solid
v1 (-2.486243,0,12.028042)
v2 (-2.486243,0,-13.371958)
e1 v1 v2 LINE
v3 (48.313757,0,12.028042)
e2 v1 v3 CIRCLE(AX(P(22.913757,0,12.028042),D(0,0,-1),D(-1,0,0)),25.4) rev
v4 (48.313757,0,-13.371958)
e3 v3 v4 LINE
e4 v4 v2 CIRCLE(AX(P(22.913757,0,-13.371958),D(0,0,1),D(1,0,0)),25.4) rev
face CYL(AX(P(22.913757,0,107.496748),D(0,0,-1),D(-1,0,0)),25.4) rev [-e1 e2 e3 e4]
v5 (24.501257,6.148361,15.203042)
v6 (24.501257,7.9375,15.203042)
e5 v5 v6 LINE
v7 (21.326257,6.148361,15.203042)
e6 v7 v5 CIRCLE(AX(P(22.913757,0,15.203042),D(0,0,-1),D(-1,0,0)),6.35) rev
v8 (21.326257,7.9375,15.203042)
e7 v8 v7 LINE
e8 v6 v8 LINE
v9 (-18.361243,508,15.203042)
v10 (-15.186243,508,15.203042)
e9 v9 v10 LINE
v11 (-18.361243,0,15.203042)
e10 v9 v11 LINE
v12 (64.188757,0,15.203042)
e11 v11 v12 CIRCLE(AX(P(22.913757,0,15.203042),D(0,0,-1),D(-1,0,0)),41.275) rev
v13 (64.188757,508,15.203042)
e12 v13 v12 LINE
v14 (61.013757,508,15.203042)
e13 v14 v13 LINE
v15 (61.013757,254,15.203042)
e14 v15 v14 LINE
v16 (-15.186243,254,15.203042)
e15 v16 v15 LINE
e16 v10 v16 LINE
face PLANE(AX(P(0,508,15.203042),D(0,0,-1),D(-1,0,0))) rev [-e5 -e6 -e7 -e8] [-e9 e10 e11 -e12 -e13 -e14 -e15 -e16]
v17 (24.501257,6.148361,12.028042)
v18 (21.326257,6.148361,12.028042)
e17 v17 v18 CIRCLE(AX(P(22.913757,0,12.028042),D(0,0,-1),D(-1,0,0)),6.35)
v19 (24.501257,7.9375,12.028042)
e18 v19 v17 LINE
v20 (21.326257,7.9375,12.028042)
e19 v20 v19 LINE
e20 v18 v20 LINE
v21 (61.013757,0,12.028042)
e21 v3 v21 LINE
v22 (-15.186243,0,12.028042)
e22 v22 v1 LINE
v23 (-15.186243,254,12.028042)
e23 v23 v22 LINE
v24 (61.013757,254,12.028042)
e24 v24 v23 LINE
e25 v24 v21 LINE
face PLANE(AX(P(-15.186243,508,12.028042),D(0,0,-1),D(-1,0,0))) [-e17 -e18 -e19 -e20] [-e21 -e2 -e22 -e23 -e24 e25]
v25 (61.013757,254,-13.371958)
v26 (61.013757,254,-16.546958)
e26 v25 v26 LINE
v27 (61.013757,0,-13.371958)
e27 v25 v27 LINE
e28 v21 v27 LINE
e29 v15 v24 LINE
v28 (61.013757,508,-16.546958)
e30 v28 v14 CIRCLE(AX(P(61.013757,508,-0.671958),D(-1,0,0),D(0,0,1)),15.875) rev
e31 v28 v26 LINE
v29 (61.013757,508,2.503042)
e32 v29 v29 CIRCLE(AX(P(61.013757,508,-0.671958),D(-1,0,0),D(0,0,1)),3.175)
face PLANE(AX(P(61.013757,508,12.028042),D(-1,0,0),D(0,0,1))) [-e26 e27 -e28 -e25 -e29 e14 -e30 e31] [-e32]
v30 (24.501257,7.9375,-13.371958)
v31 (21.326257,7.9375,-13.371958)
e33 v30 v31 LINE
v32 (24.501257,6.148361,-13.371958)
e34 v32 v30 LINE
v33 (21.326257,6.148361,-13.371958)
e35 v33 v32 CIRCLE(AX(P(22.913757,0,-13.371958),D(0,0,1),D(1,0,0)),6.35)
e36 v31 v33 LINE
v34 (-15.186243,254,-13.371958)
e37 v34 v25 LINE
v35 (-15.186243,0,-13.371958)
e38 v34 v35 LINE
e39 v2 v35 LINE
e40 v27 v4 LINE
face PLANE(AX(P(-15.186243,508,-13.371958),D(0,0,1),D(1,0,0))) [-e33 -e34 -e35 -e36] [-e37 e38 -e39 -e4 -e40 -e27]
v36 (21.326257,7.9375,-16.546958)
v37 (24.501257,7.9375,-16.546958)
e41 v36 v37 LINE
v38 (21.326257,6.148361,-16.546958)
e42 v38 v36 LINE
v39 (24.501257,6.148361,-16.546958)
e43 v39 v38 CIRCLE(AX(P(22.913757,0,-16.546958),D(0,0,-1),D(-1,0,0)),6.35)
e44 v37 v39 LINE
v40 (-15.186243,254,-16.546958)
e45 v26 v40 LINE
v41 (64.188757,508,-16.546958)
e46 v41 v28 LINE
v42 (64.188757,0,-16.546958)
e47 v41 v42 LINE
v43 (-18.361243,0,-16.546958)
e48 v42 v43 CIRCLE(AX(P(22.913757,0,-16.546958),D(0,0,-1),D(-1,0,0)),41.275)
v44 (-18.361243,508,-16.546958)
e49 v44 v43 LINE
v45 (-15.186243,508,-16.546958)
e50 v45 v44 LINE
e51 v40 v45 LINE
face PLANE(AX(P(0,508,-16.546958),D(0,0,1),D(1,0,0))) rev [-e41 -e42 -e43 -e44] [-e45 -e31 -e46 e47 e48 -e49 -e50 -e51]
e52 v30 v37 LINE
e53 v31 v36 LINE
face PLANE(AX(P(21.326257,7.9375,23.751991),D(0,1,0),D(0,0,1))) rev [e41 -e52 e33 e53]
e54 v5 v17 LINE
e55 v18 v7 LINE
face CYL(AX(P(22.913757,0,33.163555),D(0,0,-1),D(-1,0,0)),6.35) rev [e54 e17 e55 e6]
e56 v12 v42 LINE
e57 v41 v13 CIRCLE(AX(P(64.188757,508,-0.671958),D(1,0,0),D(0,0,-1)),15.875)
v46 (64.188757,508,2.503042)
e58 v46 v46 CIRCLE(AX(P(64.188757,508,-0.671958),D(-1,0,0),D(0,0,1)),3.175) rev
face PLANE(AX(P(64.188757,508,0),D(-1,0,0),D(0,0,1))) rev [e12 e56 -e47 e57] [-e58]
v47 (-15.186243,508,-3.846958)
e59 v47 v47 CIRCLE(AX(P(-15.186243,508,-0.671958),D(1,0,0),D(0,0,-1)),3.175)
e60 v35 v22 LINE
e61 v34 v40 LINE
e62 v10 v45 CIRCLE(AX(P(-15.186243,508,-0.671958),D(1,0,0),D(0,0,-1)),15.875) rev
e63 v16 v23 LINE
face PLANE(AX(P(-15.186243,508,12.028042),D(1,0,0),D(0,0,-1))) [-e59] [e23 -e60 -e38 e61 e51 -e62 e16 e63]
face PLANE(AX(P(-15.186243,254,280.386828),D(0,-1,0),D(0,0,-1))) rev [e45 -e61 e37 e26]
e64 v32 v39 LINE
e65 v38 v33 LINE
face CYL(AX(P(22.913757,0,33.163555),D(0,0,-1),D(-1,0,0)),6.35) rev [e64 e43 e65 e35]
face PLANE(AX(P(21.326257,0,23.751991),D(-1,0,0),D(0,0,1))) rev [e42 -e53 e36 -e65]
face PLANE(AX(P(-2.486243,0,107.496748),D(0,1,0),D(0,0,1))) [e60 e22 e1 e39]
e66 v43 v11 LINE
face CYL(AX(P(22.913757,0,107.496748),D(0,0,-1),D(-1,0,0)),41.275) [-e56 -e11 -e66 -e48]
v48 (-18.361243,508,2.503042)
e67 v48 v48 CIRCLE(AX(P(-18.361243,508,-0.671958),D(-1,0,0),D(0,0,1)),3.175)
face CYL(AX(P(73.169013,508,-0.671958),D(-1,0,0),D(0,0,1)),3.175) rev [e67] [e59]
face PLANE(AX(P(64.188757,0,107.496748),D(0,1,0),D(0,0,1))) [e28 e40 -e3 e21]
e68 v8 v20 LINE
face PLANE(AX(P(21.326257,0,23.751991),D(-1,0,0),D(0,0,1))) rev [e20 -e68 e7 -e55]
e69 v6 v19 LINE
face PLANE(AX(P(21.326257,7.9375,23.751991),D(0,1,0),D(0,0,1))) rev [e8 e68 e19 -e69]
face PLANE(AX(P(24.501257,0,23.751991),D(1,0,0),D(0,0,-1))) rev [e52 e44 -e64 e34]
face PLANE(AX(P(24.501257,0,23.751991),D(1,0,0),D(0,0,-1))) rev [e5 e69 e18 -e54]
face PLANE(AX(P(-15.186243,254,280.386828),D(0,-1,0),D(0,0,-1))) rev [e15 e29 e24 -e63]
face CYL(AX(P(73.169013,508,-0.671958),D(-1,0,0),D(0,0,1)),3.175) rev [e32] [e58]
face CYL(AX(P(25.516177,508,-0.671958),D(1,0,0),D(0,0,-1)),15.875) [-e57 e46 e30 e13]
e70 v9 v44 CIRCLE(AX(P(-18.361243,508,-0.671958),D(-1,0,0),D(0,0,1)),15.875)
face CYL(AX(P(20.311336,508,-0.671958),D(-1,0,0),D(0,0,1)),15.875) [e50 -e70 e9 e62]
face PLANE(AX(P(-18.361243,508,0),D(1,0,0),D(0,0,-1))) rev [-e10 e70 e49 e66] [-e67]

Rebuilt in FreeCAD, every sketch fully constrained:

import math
import FreeCAD as App
import Part
import Sketcher
Q = App.Units.Quantity

doc = App.newDocument("Part")
params = doc.addObject("Spreadsheet::Sheet", "Params")
for row, (alias, value) in enumerate([
    ("sketch1_width", "3 in"),
    ("sketch1_height", "1 in"),
    ("sketch1_width2", "3.25 in"),
    ("sketch1_height2", "1.25 in"),
    ("pad1_length", "20 in"),
    ("sketch2_radius", "1 in"),
    ("sketch2_radius2", "1.625 in"),
    ("pad2_length", "1.25 in"),
    ("sketch3_radius", "1 in"),
    ("pad3_length", "0.125 in"),
    ("sketch4_radius", "1 in"),
    ("pad4_length", "0.125 in"),
    ("sketch5_diameter", "0.5 in"),
    ("pocket1_length", "1.25 in"),
    ("sketch6_width", "0.125 in"),
    ("sketch6_height", "0.3125 in"),
    ("pocket2_length", "1.25 in"),
    ("sketch7_diameter", "0.5 in"),
    ("pocket3_length", "57.601281 mm"),
    ("sketch8_radius", "0.625 in"),
    ("pad5_length", "0.125 in"),
    ("sketch9_radius", "0.625 in"),
    ("pad6_length", "0.125 in"),
    ("sketch10_diameter", "0.25 in"),
    ("pocket4_length", "3.25 in"),
    ("sketch11_width", "3 in"),
    ("sketch11_height", "10 in"),
    ("pocket5_length", "1.25 in"),
], start=1):
    params.set(f"A{row}", alias)
    params.set(f"B{row}", "=" + value)
    params.setAlias(f"B{row}", alias)

body = doc.addObject("PartDesign::Body", "Body")

# Sketch on XZ plane
sketch1 = body.newObject("Sketcher::SketchObject", "Sketch")
sketch1.AttachmentSupport = (doc.getObject("XZ_Plane"), [""])
sketch1.MapMode = "FlatFace"
sketch1.addGeometry(Part.LineSegment(App.Vector(-18.361243, -16.546958, 0), App.Vector(-18.361243, 15.203042, 0)), False)
sketch1.addGeometry(Part.LineSegment(App.Vector(-18.361243, 15.203042, 0), App.Vector(64.188757, 15.203042, 0)), False)
sketch1.addGeometry(Part.LineSegment(App.Vector(64.188757, 15.203042, 0), App.Vector(64.188757, -16.546958, 0)), False)
sketch1.addGeometry(Part.LineSegment(App.Vector(64.188757, -16.546958, 0), App.Vector(-18.361243, -16.546958, 0)), False)
sketch1.addGeometry(Part.LineSegment(App.Vector(61.013757, 12.028042, 0), App.Vector(-15.186243, 12.028042, 0)), False)
sketch1.addGeometry(Part.LineSegment(App.Vector(-15.186243, 12.028042, 0), App.Vector(-15.186243, -13.371958, 0)), False)
sketch1.addGeometry(Part.LineSegment(App.Vector(-15.186243, -13.371958, 0), App.Vector(61.013757, -13.371958, 0)), False)
sketch1.addGeometry(Part.LineSegment(App.Vector(61.013757, -13.371958, 0), App.Vector(61.013757, 12.028042, 0)), False)
sketch1.addConstraint(Sketcher.Constraint("Coincident", 0, 2, 1, 1))
sketch1.addConstraint(Sketcher.Constraint("Coincident", 1, 2, 2, 1))
sketch1.addConstraint(Sketcher.Constraint("Coincident", 2, 2, 3, 1))
sketch1.addConstraint(Sketcher.Constraint("Coincident", 3, 2, 0, 1))
sketch1.addConstraint(Sketcher.Constraint("Coincident", 4, 2, 5, 1))
sketch1.addConstraint(Sketcher.Constraint("Coincident", 5, 2, 6, 1))
sketch1.addConstraint(Sketcher.Constraint("Coincident", 6, 2, 7, 1))
sketch1.addConstraint(Sketcher.Constraint("Coincident", 7, 2, 4, 1))
sketch1.addConstraint(Sketcher.Constraint("Vertical", 0))
sketch1.addConstraint(Sketcher.Constraint("Horizontal", 1))
sketch1.addConstraint(Sketcher.Constraint("Vertical", 2))
sketch1.addConstraint(Sketcher.Constraint("Horizontal", 3))
sketch1.addConstraint(Sketcher.Constraint("Horizontal", 4))
sketch1.addConstraint(Sketcher.Constraint("Vertical", 5))
sketch1.addConstraint(Sketcher.Constraint("Horizontal", 6))
sketch1.addConstraint(Sketcher.Constraint("Vertical", 7))
sketch1.addConstraint(Sketcher.Constraint("DistanceX", 4, 2, 4, 1, Q("3 in")))
sketch1.addConstraint(Sketcher.Constraint("DistanceY", 5, 2, 5, 1, Q("1 in")))
sketch1.addConstraint(Sketcher.Constraint("DistanceX", 1, 1, 1, 2, Q("3.25 in")))
sketch1.addConstraint(Sketcher.Constraint("DistanceY", 0, 1, 0, 2, Q("1.25 in")))
sketch1.addConstraint(Sketcher.Constraint("DistanceX", 0, 2, 4, 2, Q("0.125 in")))
sketch1.addConstraint(Sketcher.Constraint("DistanceY", 4, 2, 0, 2, Q("0.125 in")))
sketch1.addConstraint(Sketcher.Constraint("DistanceX", 0, 2, -1, 1, 18.361243))
sketch1.addConstraint(Sketcher.Constraint("DistanceY", -1, 1, 0, 2, 15.203042))
sketch1.setExpression("Constraints[16]", "Params.sketch1_width")
sketch1.setExpression("Constraints[17]", "Params.sketch1_height")
sketch1.setExpression("Constraints[18]", "Params.sketch1_width2")
sketch1.setExpression("Constraints[19]", "Params.sketch1_height2")
pad1 = body.newObject("PartDesign::Pad", "Pad")
pad1.Profile = sketch1
pad1.setExpression("Length", "Params.pad1_length")
pad1.Reversed = True

# Sketch on XY plane
sketch2 = body.newObject("Sketcher::SketchObject", "Sketch001")
sketch2.AttachmentSupport = (doc.getObject("XY_Plane"), [""])
sketch2.MapMode = "FlatFace"
sketch2.AttachmentOffset = App.Placement(App.Vector(0, 0, -16.546958), App.Rotation())
sketch2.addGeometry(Part.LineSegment(App.Vector(48.313757, 0, 0), App.Vector(64.188757, 0, 0)), False)
sketch2.addGeometry(Part.ArcOfCircle(Part.Circle(App.Vector(22.913757, 0, 0), App.Vector(0, 0, 1), 41.275), math.radians(180), math.radians(360)), False)
sketch2.addGeometry(Part.LineSegment(App.Vector(-18.361243, 0, 0), App.Vector(-2.486243, 0, 0)), False)
sketch2.addGeometry(Part.ArcOfCircle(Part.Circle(App.Vector(22.913757, 0, 0), App.Vector(0, 0, 1), 25.4), math.radians(180), math.radians(360)), False)
sketch2.addConstraint(Sketcher.Constraint("Coincident", 0, 2, 1, 2))
sketch2.addConstraint(Sketcher.Constraint("Coincident", 1, 1, 2, 1))
sketch2.addConstraint(Sketcher.Constraint("Coincident", 2, 2, 3, 1))
sketch2.addConstraint(Sketcher.Constraint("Coincident", 3, 2, 0, 1))
sketch2.addConstraint(Sketcher.Constraint("Horizontal", 0))
sketch2.addConstraint(Sketcher.Constraint("Horizontal", 2))
sketch2.addConstraint(Sketcher.Constraint("Coincident", 3, 3, 1, 3))
sketch2.addConstraint(Sketcher.Constraint("PointOnObject", 1, 3, -1))
sketch2.addConstraint(Sketcher.Constraint("PointOnObject", 0, 2, -1))
sketch2.addConstraint(Sketcher.Constraint("PointOnObject", 1, 1, -1))
sketch2.addConstraint(Sketcher.Constraint("Radius", 3, Q("1 in")))
sketch2.addConstraint(Sketcher.Constraint("Radius", 1, Q("1.625 in")))
sketch2.addConstraint(Sketcher.Constraint("DistanceX", -1, 1, 1, 3, 22.913757))
sketch2.setExpression("Constraints[10]", "Params.sketch2_radius")
sketch2.setExpression("Constraints[11]", "Params.sketch2_radius2")
pad2 = body.newObject("PartDesign::Pad", "Pad001")
pad2.Profile = sketch2
pad2.setExpression("Length", "Params.pad2_length")

# Sketch on XY plane
sketch3 = body.newObject("Sketcher::SketchObject", "Sketch002")
sketch3.AttachmentSupport = (doc.getObject("XY_Plane"), [""])
sketch3.MapMode = "FlatFace"
sketch3.AttachmentOffset = App.Placement(App.Vector(0, 0, -16.546958), App.Rotation())
sketch3.addGeometry(Part.LineSegment(App.Vector(-2.486243, 0, 0), App.Vector(48.313757, 0, 0)), False)
sketch3.addGeometry(Part.ArcOfCircle(Part.Circle(App.Vector(22.913757, 0, 0), App.Vector(0, 0, 1), 25.4), math.radians(180), math.radians(360)), False)
sketch3.addConstraint(Sketcher.Constraint("Coincident", 0, 1, 1, 1))
sketch3.addConstraint(Sketcher.Constraint("Coincident", 1, 2, 0, 2))
sketch3.addConstraint(Sketcher.Constraint("Horizontal", 0))
sketch3.addConstraint(Sketcher.Constraint("PointOnObject", 1, 3, -1))
sketch3.addConstraint(Sketcher.Constraint("PointOnObject", 0, 1, -1))
sketch3.addConstraint(Sketcher.Constraint("Radius", 1, Q("1 in")))
sketch3.addConstraint(Sketcher.Constraint("DistanceX", -1, 1, 1, 3, 22.913757))
sketch3.setExpression("Constraints[5]", "Params.sketch3_radius")
pad3 = body.newObject("PartDesign::Pad", "Pad002")
pad3.Profile = sketch3
pad3.setExpression("Length", "Params.pad3_length")

# Sketch on XY plane
sketch4 = body.newObject("Sketcher::SketchObject", "Sketch003")
sketch4.AttachmentSupport = (doc.getObject("XY_Plane"), [""])
sketch4.MapMode = "FlatFace"
sketch4.AttachmentOffset = App.Placement(App.Vector(0, 0, 15.203042), App.Rotation())
sketch4.addGeometry(Part.LineSegment(App.Vector(48.313757, 0, 0), App.Vector(-2.486243, 0, 0)), False)
sketch4.addGeometry(Part.ArcOfCircle(Part.Circle(App.Vector(22.913757, 0, 0), App.Vector(0, 0, 1), 25.4), math.radians(180), math.radians(360)), False)
sketch4.addConstraint(Sketcher.Constraint("Coincident", 0, 1, 1, 2))
sketch4.addConstraint(Sketcher.Constraint("Coincident", 1, 1, 0, 2))
sketch4.addConstraint(Sketcher.Constraint("Horizontal", 0))
sketch4.addConstraint(Sketcher.Constraint("PointOnObject", 1, 3, -1))
sketch4.addConstraint(Sketcher.Constraint("PointOnObject", 0, 1, -1))
sketch4.addConstraint(Sketcher.Constraint("Radius", 1, Q("1 in")))
sketch4.addConstraint(Sketcher.Constraint("DistanceX", -1, 1, 1, 3, 22.913757))
sketch4.setExpression("Constraints[5]", "Params.sketch4_radius")
pad4 = body.newObject("PartDesign::Pad", "Pad003")
pad4.Profile = sketch4
pad4.setExpression("Length", "Params.pad4_length")
pad4.Reversed = True

# Sketch on XY plane
sketch5 = body.newObject("Sketcher::SketchObject", "Sketch004")
sketch5.AttachmentSupport = (doc.getObject("XY_Plane"), [""])
sketch5.MapMode = "FlatFace"
sketch5.AttachmentOffset = App.Placement(App.Vector(0, 0, -16.546958), App.Rotation())
sketch5.addGeometry(Part.Circle(App.Vector(22.913757, 0, 0), App.Vector(0, 0, 1), 6.35), False)
sketch5.addConstraint(Sketcher.Constraint("PointOnObject", 0, 3, -1))
sketch5.addConstraint(Sketcher.Constraint("Diameter", 0, Q("0.5 in")))
sketch5.addConstraint(Sketcher.Constraint("DistanceX", -1, 1, 0, 3, 22.913757))
sketch5.setExpression("Constraints[1]", "Params.sketch5_diameter")
pocket1 = body.newObject("PartDesign::Pocket", "Pocket")
pocket1.Profile = sketch5
pocket1.setExpression("Length", "Params.pocket1_length")
pocket1.Reversed = True

# Sketch on XY plane
sketch6 = body.newObject("Sketcher::SketchObject", "Sketch005")
sketch6.AttachmentSupport = (doc.getObject("XY_Plane"), [""])
sketch6.MapMode = "FlatFace"
sketch6.AttachmentOffset = App.Placement(App.Vector(0, 0, -16.546958), App.Rotation())
sketch6.addGeometry(Part.LineSegment(App.Vector(24.501257, 7.9375, 0), App.Vector(24.501257, 0, 0)), False)
sketch6.addGeometry(Part.LineSegment(App.Vector(24.501257, 0, 0), App.Vector(21.326257, 0, 0)), False)
sketch6.addGeometry(Part.LineSegment(App.Vector(21.326257, 0, 0), App.Vector(21.326257, 7.9375, 0)), False)
sketch6.addGeometry(Part.LineSegment(App.Vector(21.326257, 7.9375, 0), App.Vector(24.501257, 7.9375, 0)), False)
sketch6.addConstraint(Sketcher.Constraint("Coincident", 0, 2, 1, 1))
sketch6.addConstraint(Sketcher.Constraint("Coincident", 1, 2, 2, 1))
sketch6.addConstraint(Sketcher.Constraint("Coincident", 2, 2, 3, 1))
sketch6.addConstraint(Sketcher.Constraint("Coincident", 3, 2, 0, 1))
sketch6.addConstraint(Sketcher.Constraint("Vertical", 0))
sketch6.addConstraint(Sketcher.Constraint("Horizontal", 1))
sketch6.addConstraint(Sketcher.Constraint("Vertical", 2))
sketch6.addConstraint(Sketcher.Constraint("Horizontal", 3))
sketch6.addConstraint(Sketcher.Constraint("PointOnObject", 0, 2, -1))
sketch6.addConstraint(Sketcher.Constraint("DistanceX", 1, 2, 1, 1, Q("0.125 in")))
sketch6.addConstraint(Sketcher.Constraint("DistanceY", 0, 2, 0, 1, Q("0.3125 in")))
sketch6.addConstraint(Sketcher.Constraint("DistanceX", -1, 1, 0, 2, 24.501257))
sketch6.setExpression("Constraints[9]", "Params.sketch6_width")
sketch6.setExpression("Constraints[10]", "Params.sketch6_height")
pocket2 = body.newObject("PartDesign::Pocket", "Pocket001")
pocket2.Profile = sketch6
pocket2.setExpression("Length", "Params.pocket2_length")
pocket2.Reversed = True

# Sketch on an angled plane
sketch7 = body.newObject("Sketcher::SketchObject", "Sketch006")
sketch7.Placement = App.Placement(App.Vector(0, 208.072838, -208.072838), App.Rotation(App.Vector(-1, 0, 0), App.Vector(0, 0.707106781, 0.707106781), App.Vector(0, 0.707106781, -0.707106781), "ZXY"))
sketch7.addGeometry(Part.Circle(App.Vector(-22.913757, 322.109779, 0), App.Vector(0, 0, 1), 6.35), False)
sketch7.addConstraint(Sketcher.Constraint("Diameter", 0, Q("0.5 in")))
sketch7.addConstraint(Sketcher.Constraint("DistanceY", -1, 1, 0, 3, 322.109779))
sketch7.addConstraint(Sketcher.Constraint("DistanceX", 0, 3, -1, 1, 22.913757))
sketch7.setExpression("Constraints[0]", "Params.sketch7_diameter")
pocket3 = body.newObject("PartDesign::Pocket", "Pocket002")
pocket3.Profile = sketch7
pocket3.setExpression("Length", "Params.pocket3_length")
pocket3.Reversed = True

# Sketch on YZ plane
sketch8 = body.newObject("Sketcher::SketchObject", "Sketch007")
sketch8.AttachmentSupport = (doc.getObject("YZ_Plane"), [""])
sketch8.MapMode = "FlatFace"
sketch8.AttachmentOffset = App.Placement(App.Vector(0, 0, -18.361243), App.Rotation())
sketch8.addGeometry(Part.LineSegment(App.Vector(508, -16.546958, 0), App.Vector(508, 15.203042, 0)), False)
sketch8.addGeometry(Part.ArcOfCircle(Part.Circle(App.Vector(508, -0.671958, 0), App.Vector(0, 0, 1), 15.875), math.radians(-90), math.radians(90)), False)
sketch8.addConstraint(Sketcher.Constraint("Coincident", 0, 1, 1, 1))
sketch8.addConstraint(Sketcher.Constraint("Coincident", 1, 2, 0, 2))
sketch8.addConstraint(Sketcher.Constraint("Vertical", 0))
sketch8.addConstraint(Sketcher.Constraint("Vertical", 1, 3, 0, 1))
sketch8.addConstraint(Sketcher.Constraint("DistanceX", -1, 1, 1, 3, Q("20 in")))
sketch8.addConstraint(Sketcher.Constraint("Radius", 1, Q("0.625 in")))
sketch8.addConstraint(Sketcher.Constraint("DistanceY", 1, 3, -1, 1, 0.671958))
sketch8.setExpression("Constraints[5]", "Params.sketch8_radius")
pad5 = body.newObject("PartDesign::Pad", "Pad004")
pad5.Profile = sketch8
pad5.setExpression("Length", "Params.pad5_length")

# Sketch on YZ plane
sketch9 = body.newObject("Sketcher::SketchObject", "Sketch008")
sketch9.AttachmentSupport = (doc.getObject("YZ_Plane"), [""])
sketch9.MapMode = "FlatFace"
sketch9.AttachmentOffset = App.Placement(App.Vector(0, 0, 64.188757), App.Rotation())
sketch9.addGeometry(Part.ArcOfCircle(Part.Circle(App.Vector(508, -0.671958, 0), App.Vector(0, 0, 1), 15.875), math.radians(-90), math.radians(90)), False)
sketch9.addGeometry(Part.LineSegment(App.Vector(508, 15.203042, 0), App.Vector(508, -16.546958, 0)), False)
sketch9.addConstraint(Sketcher.Constraint("Coincident", 0, 1, 1, 2))
sketch9.addConstraint(Sketcher.Constraint("Coincident", 1, 1, 0, 2))
sketch9.addConstraint(Sketcher.Constraint("Vertical", 1))
sketch9.addConstraint(Sketcher.Constraint("DistanceX", -1, 1, 0, 3, Q("20 in")))
sketch9.addConstraint(Sketcher.Constraint("DistanceX", -1, 1, 0, 1, Q("20 in")))
sketch9.addConstraint(Sketcher.Constraint("Radius", 0, Q("0.625 in")))
sketch9.addConstraint(Sketcher.Constraint("DistanceY", 0, 3, -1, 1, 0.671958))
sketch9.setExpression("Constraints[5]", "Params.sketch9_radius")
pad6 = body.newObject("PartDesign::Pad", "Pad005")
pad6.Profile = sketch9
pad6.setExpression("Length", "Params.pad6_length")
pad6.Reversed = True

# Sketch on YZ plane
sketch10 = body.newObject("Sketcher::SketchObject", "Sketch009")
sketch10.AttachmentSupport = (doc.getObject("YZ_Plane"), [""])
sketch10.MapMode = "FlatFace"
sketch10.AttachmentOffset = App.Placement(App.Vector(0, 0, 64.188757), App.Rotation())
sketch10.addGeometry(Part.Circle(App.Vector(508, -0.671958, 0), App.Vector(0, 0, 1), 3.175), False)
sketch10.addConstraint(Sketcher.Constraint("Diameter", 0, Q("0.25 in")))
sketch10.addConstraint(Sketcher.Constraint("DistanceX", -1, 1, 0, 3, Q("20 in")))
sketch10.addConstraint(Sketcher.Constraint("DistanceY", 0, 3, -1, 1, 0.671958))
sketch10.setExpression("Constraints[0]", "Params.sketch10_diameter")
pocket4 = body.newObject("PartDesign::Pocket", "Pocket003")
pocket4.Profile = sketch10
pocket4.setExpression("Length", "Params.pocket4_length")

# Sketch on XY plane
sketch11 = body.newObject("Sketcher::SketchObject", "Sketch010")
sketch11.AttachmentSupport = (doc.getObject("XY_Plane"), [""])
sketch11.MapMode = "FlatFace"
sketch11.AttachmentOffset = App.Placement(App.Vector(0, 0, 15.203042), App.Rotation())
sketch11.addGeometry(Part.LineSegment(App.Vector(61.013757, 508, 0), App.Vector(61.013757, 254, 0)), False)
sketch11.addGeometry(Part.LineSegment(App.Vector(61.013757, 254, 0), App.Vector(-15.186243, 254, 0)), False)
sketch11.addGeometry(Part.LineSegment(App.Vector(-15.186243, 254, 0), App.Vector(-15.186243, 508, 0)), False)
sketch11.addGeometry(Part.LineSegment(App.Vector(-15.186243, 508, 0), App.Vector(61.013757, 508, 0)), False)
sketch11.addConstraint(Sketcher.Constraint("Coincident", 0, 2, 1, 1))
sketch11.addConstraint(Sketcher.Constraint("Coincident", 1, 2, 2, 1))
sketch11.addConstraint(Sketcher.Constraint("Coincident", 2, 2, 3, 1))
sketch11.addConstraint(Sketcher.Constraint("Coincident", 3, 2, 0, 1))
sketch11.addConstraint(Sketcher.Constraint("Vertical", 0))
sketch11.addConstraint(Sketcher.Constraint("Horizontal", 1))
sketch11.addConstraint(Sketcher.Constraint("Vertical", 2))
sketch11.addConstraint(Sketcher.Constraint("Horizontal", 3))
sketch11.addConstraint(Sketcher.Constraint("DistanceX", 1, 2, 1, 1, Q("3 in")))
sketch11.addConstraint(Sketcher.Constraint("DistanceY", 0, 2, 0, 1, Q("10 in")))
sketch11.addConstraint(Sketcher.Constraint("DistanceY", -1, 1, 0, 2, Q("10 in")))
sketch11.addConstraint(Sketcher.Constraint("DistanceX", -1, 1, 0, 2, 61.013757))
sketch11.setExpression("Constraints[8]", "Params.sketch11_width")
sketch11.setExpression("Constraints[9]", "Params.sketch11_height")
pocket5 = body.newObject("PartDesign::Pocket", "Pocket004")
pocket5.Profile = sketch11
pocket5.setExpression("Length", "Params.pocket5_length")

doc.recompute()
